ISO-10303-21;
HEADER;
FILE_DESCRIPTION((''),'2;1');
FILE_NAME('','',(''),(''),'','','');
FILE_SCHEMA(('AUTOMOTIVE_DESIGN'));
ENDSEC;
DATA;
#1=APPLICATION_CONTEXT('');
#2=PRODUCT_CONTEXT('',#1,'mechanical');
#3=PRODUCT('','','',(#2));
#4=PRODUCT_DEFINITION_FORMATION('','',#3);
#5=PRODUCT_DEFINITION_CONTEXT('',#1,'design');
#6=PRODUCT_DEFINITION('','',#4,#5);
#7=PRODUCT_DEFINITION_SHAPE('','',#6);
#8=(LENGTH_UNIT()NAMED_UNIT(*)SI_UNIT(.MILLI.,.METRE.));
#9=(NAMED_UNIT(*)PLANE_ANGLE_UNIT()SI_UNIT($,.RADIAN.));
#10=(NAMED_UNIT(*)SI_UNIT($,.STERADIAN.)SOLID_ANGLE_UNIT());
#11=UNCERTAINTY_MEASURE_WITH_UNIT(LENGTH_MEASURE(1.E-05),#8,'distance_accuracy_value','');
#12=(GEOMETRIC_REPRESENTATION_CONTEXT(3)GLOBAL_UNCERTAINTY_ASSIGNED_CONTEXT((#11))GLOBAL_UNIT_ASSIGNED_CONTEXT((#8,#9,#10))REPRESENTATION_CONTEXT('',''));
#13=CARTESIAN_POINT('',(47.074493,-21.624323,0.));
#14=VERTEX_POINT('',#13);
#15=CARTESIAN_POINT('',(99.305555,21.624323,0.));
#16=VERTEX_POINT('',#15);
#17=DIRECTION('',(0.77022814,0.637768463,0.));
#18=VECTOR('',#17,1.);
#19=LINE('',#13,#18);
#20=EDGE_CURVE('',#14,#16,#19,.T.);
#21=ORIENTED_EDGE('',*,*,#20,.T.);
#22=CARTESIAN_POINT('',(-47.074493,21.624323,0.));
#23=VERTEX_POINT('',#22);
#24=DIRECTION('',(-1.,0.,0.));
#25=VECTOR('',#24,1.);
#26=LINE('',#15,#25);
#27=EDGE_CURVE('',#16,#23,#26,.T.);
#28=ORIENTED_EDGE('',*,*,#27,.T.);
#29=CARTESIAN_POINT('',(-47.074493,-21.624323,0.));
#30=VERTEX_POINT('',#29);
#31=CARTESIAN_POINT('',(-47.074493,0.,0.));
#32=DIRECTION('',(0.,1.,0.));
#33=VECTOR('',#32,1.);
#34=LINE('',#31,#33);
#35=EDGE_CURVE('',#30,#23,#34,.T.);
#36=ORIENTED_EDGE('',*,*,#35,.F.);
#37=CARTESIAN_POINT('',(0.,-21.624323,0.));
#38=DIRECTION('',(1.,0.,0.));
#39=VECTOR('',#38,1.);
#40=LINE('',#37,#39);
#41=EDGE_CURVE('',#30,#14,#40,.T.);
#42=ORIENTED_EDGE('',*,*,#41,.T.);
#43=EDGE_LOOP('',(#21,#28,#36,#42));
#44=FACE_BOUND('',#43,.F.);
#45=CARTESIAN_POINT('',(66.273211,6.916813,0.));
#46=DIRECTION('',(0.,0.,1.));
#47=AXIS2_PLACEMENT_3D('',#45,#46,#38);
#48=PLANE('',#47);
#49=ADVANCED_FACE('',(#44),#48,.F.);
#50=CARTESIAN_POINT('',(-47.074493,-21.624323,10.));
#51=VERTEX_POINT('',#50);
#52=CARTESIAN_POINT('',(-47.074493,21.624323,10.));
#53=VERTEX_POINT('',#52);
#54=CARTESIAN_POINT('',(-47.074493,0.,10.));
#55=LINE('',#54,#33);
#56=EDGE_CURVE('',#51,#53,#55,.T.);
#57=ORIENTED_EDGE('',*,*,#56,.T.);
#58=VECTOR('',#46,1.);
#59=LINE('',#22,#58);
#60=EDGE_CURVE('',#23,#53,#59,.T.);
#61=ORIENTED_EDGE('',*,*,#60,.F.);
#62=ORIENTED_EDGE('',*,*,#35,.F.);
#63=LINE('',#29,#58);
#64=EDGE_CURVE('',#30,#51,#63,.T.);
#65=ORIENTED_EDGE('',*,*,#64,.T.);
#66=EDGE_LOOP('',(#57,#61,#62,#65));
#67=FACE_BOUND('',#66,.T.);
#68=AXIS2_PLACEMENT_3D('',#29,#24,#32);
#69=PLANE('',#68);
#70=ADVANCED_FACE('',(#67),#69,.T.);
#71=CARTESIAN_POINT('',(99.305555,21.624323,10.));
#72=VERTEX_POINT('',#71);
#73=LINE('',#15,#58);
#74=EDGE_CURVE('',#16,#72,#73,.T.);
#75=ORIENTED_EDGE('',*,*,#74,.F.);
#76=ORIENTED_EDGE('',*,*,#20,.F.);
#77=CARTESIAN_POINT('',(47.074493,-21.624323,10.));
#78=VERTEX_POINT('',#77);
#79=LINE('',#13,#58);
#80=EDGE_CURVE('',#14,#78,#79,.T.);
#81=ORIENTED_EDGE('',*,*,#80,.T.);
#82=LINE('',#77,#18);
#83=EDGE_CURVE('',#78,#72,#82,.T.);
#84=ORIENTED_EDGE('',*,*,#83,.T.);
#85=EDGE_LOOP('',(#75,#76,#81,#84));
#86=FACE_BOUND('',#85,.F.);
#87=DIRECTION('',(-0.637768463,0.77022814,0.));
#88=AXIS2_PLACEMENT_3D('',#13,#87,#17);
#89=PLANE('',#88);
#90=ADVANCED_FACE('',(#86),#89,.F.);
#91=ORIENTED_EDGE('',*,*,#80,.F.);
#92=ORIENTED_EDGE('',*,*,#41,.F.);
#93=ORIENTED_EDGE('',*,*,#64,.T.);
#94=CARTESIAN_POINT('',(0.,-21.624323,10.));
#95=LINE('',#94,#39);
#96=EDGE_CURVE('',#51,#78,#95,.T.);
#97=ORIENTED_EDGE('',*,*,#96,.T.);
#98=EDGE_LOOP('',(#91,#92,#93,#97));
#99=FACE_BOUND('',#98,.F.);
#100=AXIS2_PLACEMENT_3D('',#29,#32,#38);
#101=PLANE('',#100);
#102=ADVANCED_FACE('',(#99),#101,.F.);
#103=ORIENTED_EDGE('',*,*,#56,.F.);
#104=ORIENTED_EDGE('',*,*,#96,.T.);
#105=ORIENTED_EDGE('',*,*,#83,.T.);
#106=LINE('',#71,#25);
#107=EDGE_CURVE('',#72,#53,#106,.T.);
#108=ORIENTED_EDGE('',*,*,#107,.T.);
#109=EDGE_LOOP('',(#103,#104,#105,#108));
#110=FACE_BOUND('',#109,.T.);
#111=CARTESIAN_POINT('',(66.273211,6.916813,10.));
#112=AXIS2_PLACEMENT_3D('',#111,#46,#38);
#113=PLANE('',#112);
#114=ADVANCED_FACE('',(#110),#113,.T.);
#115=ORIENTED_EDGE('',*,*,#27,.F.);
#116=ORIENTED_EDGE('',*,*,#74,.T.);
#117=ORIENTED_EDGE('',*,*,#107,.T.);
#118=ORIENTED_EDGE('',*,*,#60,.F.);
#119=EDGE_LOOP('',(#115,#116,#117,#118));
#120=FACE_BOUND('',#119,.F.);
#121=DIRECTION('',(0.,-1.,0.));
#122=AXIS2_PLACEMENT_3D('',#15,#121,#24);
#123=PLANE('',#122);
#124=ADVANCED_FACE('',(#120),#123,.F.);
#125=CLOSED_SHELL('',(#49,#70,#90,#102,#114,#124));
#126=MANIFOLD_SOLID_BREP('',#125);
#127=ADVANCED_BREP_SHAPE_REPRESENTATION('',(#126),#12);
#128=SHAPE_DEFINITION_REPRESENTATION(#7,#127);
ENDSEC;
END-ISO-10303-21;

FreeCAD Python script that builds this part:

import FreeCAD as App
import Part
import Sketcher
from FreeCAD import Vector
Q = App.Units.Quantity


def add_polygon(sketch, points):
    """Adds a closed chain of lines whose ends are joined by coincident constraints."""
    first, n = sketch.GeometryCount, len(points)
    for a, b in zip(points, points[1:] + points[:1]):
        sketch.addGeometry(Part.LineSegment(App.Vector(*a, 0), App.Vector(*b, 0)), False)
    for i in range(n):
        sketch.addConstraint(Sketcher.Constraint("Coincident", first + i, 2, first + (i + 1) % n, 1))

doc = App.newDocument("Part")
body = doc.addObject("PartDesign::Body", "Body")

# Sketch on XY plane
sketch1 = doc.addObject("Sketcher::SketchObject", "Sketch")
body.addObject(sketch1)
sketch1.AttachmentSupport = (doc.XY_Plane, [""])
sketch1.MapMode = "FlatFace"
add_polygon(sketch1, [(47, -22), (99, 22), (-47, 22), (-47, -22)])  # lines 0-3
sketch1.addConstraint(Sketcher.Constraint("Horizontal", 1))
sketch1.addConstraint(Sketcher.Constraint("Vertical", 2))
sketch1.addConstraint(Sketcher.Constraint("Horizontal", 3))
sketch1.addConstraint(Sketcher.Constraint("Symmetric", 1, 2, 3, 2, -1, 1))
sketch1.addConstraint(Sketcher.Constraint("DistanceX", 1, 2, 1, 1, Q("146.380048 mm")))
sketch1.addConstraint(Sketcher.Constraint("DistanceX", 3, 1, 3, 2, Q("94.148986 mm")))
sketch1.addConstraint(Sketcher.Constraint("DistanceY", 2, 2, 2, 1, Q("43.248646 mm")))
pad1 = doc.addObject("PartDesign::Pad", "Pad")
body.addObject(pad1)
pad1.Profile = sketch1
pad1.Length = 10

doc.recompute()
